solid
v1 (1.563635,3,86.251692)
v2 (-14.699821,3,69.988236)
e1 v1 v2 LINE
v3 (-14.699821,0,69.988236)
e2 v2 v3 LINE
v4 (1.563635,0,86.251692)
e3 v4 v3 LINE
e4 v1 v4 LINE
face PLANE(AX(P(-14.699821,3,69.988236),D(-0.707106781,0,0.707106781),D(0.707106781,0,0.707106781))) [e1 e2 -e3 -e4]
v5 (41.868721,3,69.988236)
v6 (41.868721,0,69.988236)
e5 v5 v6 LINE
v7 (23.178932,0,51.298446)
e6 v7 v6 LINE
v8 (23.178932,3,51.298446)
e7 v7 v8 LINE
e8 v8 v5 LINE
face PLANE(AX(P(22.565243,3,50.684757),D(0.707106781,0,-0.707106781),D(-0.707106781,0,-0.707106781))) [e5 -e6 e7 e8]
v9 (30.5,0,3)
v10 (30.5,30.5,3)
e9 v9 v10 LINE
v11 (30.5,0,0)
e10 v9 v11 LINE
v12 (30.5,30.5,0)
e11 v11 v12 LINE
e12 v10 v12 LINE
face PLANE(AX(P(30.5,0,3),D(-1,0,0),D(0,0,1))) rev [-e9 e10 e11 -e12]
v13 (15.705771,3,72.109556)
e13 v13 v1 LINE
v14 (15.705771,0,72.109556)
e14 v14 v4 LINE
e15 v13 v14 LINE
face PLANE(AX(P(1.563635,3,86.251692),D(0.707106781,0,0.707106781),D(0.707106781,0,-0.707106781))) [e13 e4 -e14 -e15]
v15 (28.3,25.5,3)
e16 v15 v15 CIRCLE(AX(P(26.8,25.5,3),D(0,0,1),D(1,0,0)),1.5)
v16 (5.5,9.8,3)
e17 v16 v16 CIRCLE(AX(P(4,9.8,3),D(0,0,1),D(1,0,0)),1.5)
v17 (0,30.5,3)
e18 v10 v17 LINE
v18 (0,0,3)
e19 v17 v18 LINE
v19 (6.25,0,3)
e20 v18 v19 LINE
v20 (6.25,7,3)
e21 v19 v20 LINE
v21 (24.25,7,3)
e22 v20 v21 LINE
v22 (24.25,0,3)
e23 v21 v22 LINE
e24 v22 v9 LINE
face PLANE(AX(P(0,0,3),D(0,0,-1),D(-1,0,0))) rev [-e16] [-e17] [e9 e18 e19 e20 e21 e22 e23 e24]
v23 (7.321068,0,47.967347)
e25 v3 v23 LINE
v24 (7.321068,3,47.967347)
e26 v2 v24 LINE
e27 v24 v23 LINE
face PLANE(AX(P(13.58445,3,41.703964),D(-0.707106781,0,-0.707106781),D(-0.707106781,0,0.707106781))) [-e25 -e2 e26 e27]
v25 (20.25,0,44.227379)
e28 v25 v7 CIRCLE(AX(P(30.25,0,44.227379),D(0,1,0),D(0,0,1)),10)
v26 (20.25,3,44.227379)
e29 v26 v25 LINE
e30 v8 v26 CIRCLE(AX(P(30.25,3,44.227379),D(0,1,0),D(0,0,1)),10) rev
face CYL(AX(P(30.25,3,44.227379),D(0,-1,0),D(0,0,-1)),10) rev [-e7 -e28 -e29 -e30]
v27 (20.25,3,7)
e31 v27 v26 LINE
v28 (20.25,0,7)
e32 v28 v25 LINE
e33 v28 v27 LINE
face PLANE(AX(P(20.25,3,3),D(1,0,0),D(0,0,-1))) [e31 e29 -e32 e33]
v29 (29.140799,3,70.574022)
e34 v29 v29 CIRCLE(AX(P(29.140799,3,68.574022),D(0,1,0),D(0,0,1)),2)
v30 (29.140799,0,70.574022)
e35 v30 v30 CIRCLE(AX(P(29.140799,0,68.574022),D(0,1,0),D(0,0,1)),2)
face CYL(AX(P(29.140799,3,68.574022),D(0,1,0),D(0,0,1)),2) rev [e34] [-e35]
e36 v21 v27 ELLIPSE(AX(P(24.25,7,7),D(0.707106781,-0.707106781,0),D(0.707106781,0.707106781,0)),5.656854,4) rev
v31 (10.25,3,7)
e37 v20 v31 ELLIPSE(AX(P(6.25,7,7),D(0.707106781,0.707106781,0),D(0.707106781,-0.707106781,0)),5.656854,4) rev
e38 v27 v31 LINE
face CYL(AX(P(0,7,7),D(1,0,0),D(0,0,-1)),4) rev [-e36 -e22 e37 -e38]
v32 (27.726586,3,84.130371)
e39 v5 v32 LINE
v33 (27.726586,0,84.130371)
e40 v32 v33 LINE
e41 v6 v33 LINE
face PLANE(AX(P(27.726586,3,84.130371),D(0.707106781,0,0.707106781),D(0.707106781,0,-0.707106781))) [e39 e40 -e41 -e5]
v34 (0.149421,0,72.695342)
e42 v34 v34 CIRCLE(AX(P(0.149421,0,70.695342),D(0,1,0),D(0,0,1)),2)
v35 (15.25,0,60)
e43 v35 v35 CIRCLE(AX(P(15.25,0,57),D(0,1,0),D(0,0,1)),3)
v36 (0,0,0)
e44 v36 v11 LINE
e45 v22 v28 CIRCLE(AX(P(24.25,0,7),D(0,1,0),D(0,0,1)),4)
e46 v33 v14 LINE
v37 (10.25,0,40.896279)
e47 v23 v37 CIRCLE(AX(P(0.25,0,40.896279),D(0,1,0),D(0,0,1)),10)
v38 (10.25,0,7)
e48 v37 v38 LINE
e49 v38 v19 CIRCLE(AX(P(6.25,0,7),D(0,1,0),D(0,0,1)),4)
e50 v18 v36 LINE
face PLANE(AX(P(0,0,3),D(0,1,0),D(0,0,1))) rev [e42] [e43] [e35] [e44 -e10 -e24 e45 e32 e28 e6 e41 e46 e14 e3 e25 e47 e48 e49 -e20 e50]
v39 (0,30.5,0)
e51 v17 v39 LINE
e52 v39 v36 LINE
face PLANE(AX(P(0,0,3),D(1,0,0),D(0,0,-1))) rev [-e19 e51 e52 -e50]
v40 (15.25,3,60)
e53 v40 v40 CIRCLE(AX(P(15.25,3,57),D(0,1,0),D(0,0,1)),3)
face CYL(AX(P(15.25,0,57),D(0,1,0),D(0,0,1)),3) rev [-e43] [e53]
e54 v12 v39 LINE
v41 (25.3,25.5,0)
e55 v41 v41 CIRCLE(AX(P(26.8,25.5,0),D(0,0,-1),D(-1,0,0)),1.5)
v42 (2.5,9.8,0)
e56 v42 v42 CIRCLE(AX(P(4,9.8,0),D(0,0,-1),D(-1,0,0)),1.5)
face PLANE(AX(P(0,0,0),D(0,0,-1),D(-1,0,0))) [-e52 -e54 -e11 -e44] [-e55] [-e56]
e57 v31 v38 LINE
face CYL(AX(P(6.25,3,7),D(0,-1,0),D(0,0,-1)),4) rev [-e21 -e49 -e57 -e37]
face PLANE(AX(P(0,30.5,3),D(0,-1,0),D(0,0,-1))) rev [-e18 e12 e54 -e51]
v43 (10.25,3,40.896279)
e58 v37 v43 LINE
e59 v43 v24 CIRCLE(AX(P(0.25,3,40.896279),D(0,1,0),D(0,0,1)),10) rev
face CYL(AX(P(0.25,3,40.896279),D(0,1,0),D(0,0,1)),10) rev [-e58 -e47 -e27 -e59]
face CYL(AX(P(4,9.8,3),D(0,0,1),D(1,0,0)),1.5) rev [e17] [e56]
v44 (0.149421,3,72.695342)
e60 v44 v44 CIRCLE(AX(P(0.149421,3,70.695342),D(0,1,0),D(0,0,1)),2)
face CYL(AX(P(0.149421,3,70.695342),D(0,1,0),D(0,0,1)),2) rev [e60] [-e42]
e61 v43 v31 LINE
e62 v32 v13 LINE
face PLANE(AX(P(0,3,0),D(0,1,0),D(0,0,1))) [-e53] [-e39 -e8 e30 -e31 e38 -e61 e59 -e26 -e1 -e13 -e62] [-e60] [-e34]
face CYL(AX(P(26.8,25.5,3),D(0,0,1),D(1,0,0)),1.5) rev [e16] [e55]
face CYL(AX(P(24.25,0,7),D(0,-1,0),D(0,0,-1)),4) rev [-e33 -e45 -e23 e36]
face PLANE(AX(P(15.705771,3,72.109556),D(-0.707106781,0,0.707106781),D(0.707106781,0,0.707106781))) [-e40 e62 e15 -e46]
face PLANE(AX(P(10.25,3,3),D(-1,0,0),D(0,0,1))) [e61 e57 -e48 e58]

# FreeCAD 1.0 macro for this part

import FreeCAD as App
import Part
import Sketcher

V = App.Vector
Q = App.Units.Quantity


def edges_at(feature, points):
    """Names of the edges that pass closest to the given points."""
    edges = feature.Shape.Edges
    near = lambda p: min(range(len(edges)), key=lambda i: edges[i].distToShape(Part.Vertex(*p))[0])
    return sorted({f"Edge{near(p) + 1}" for p in points})

doc = App.newDocument("Part")
body = doc.addObject("PartDesign::Body", "Body")

# Sketch on XY plane
sketch1 = doc.addObject("Sketcher::SketchObject", "Sketch")
body.addObject(sketch1)
sketch1.AttachmentSupport = (doc.XY_Plane, [""])
sketch1.MapMode = "FlatFace"
sketch1.addGeometry([
    Part.LineSegment(V(0, 30.5, 0), V(0, 0, 0)),
    Part.LineSegment(V(0, 0, 0), V(30.5, 0, 0)),
    Part.LineSegment(V(30.5, 0, 0), V(30.5, 30.5, 0)),
    Part.LineSegment(V(30.5, 30.5, 0), V(0, 30.5, 0)),
], False)
sketch1.addConstraint([
    Sketcher.Constraint("Coincident", 0, 2, 1, 1),
    Sketcher.Constraint("Coincident", 1, 2, 2, 1),
    Sketcher.Constraint("Coincident", 2, 2, 3, 1),
    Sketcher.Constraint("Coincident", 3, 2, 0, 1),
    Sketcher.Constraint("Vertical", 0),
    Sketcher.Constraint("Horizontal", 1),
    Sketcher.Constraint("Vertical", 2),
    Sketcher.Constraint("Horizontal", 3),
    Sketcher.Constraint("Coincident", 0, 2, -1, 1),
    Sketcher.Constraint("Equal", 3, 0),
    Sketcher.Constraint("DistanceX", 1, 1, 1, 2, 30.5),
])
pad1 = doc.addObject("PartDesign::Pad", "Pad")
body.addObject(pad1)
pad1.Profile = sketch1
pad1.Length = 3

# Sketch on XZ plane
sketch2 = doc.addObject("Sketcher::SketchObject", "Sketch001")
body.addObject(sketch2)
sketch2.AttachmentSupport = (doc.XZ_Plane, [""])
sketch2.MapMode = "FlatFace"
sketch2.addGeometry([
    Part.LineSegment(V(10.25, 63, 0), V(10.25, 3, 0)),
    Part.LineSegment(V(10.25, 3, 0), V(20.25, 3, 0)),
    Part.LineSegment(V(20.25, 3, 0), V(20.25, 63, 0)),
    Part.LineSegment(V(20.25, 63, 0), V(10.25, 63, 0)),
], False)
sketch2.addConstraint([
    Sketcher.Constraint("Coincident", 0, 2, 1, 1),
    Sketcher.Constraint("Coincident", 1, 2, 2, 1),
    Sketcher.Constraint("Coincident", 2, 2, 3, 1),
    Sketcher.Constraint("Coincident", 3, 2, 0, 1),
    Sketcher.Constraint("Vertical", 0),
    Sketcher.Constraint("Horizontal", 1),
    Sketcher.Constraint("Vertical", 2),
    Sketcher.Constraint("Horizontal", 3),
    Sketcher.Constraint("DistanceX", 1, 1, 1, 2, 10.0),
    Sketcher.Constraint("DistanceY", 0, 2, 0, 1, 60.0),
    Sketcher.Constraint("DistanceY", -1, 1, 0, 2, 3.0),
    Sketcher.Constraint("DistanceX", -1, 1, 0, 2, 10.25),
])
pad2 = doc.addObject("PartDesign::Pad", "Pad001")
body.addObject(pad2)
pad2.Profile = sketch2
pad2.Length = 3
pad2.Reversed = True

# Sketch on XZ plane
sketch3 = doc.addObject("Sketcher::SketchObject", "Sketch002")
body.addObject(sketch3)
sketch3.AttachmentSupport = (doc.XZ_Plane, [""])
sketch3.MapMode = "FlatFace"
sketch3.addGeometry([
    Part.LineSegment(V(13.58445, 41.703964, 0), V(22.565243, 50.684757, 0)),  # 0
    Part.LineSegment(V(22.565243, 50.684757, 0), V(41.868721, 69.988236, 0)),  # 1
    Part.LineSegment(V(41.868721, 69.988236, 0), V(27.726586, 84.130371, 0)),  # 2
    Part.LineSegment(V(27.726586, 84.130371, 0), V(15.705771, 72.109556, 0)),  # 3
    Part.LineSegment(V(15.705771, 72.109556, 0), V(1.563635, 86.251692, 0)),  # 4
    Part.LineSegment(V(1.563635, 86.251692, 0), V(-14.699821, 69.988236, 0)),  # 5
    Part.LineSegment(V(-14.699821, 69.988236, 0), V(13.58445, 41.703964, 0)),  # 6
], False)
sketch3.addConstraint([
    Sketcher.Constraint("Coincident", 0, 2, 1, 1),
    Sketcher.Constraint("Coincident", 1, 2, 2, 1),
    Sketcher.Constraint("Coincident", 2, 2, 3, 1),
    Sketcher.Constraint("Coincident", 3, 2, 4, 1),
    Sketcher.Constraint("Coincident", 4, 2, 5, 1),
    Sketcher.Constraint("Coincident", 5, 2, 6, 1),
    Sketcher.Constraint("Coincident", 6, 2, 0, 1),
    Sketcher.Constraint("Parallel", 0, 1),
    Sketcher.Constraint("Perpendicular", 1, 2),
    Sketcher.Constraint("Perpendicular", 2, 3),
    Sketcher.Constraint("Perpendicular", 3, 4),
    Sketcher.Constraint("Perpendicular", 4, 5),
    Sketcher.Constraint("Perpendicular", 5, 6),
    Sketcher.Constraint("Horizontal", 1, 2, 5, 2),
    Sketcher.Constraint("Equal", 2, 4),
    Sketcher.Constraint("Angle", 0, Q("45 deg")),
    Sketcher.Constraint("Distance", 2, 20.0),
    Sketcher.Constraint("Distance", 3, 17.0),
    Sketcher.Constraint("DistanceY", 0, 2, 3, 2, 21.424799),
    Sketcher.Constraint("DistanceX", -1, 1, 1, 2, 41.868721),
    Sketcher.Constraint("DistanceY", -1, 1, 2, 2, 84.130371),
])
pad3 = doc.addObject("PartDesign::Pad", "Pad002")
body.addObject(pad3)
pad3.Profile = sketch3
pad3.Length = 3
pad3.Reversed = True

# Sketch on XY plane
sketch4 = doc.addObject("Sketcher::SketchObject", "Sketch003")
body.addObject(sketch4)
sketch4.AttachmentSupport = (doc.XY_Plane, [""])
sketch4.MapMode = "FlatFace"
sketch4.AttachmentOffset = App.Placement(V(0, 0, 3), App.Rotation())
sketch4.addGeometry([
    Part.Circle(V(4, 9.8, 0), V(0, 0, 1), 1.5),
    Part.Circle(V(26.8, 25.5, 0), V(0, 0, 1), 1.5),
], False)
sketch4.addConstraint([
    Sketcher.Constraint("Equal", 0, 1),
    Sketcher.Constraint("Diameter", 0, 3.0),
    Sketcher.Constraint("DistanceX", -1, 1, 0, 3, 4.0),
    Sketcher.Constraint("DistanceY", -1, 1, 0, 3, 9.8),
    Sketcher.Constraint("DistanceX", -1, 1, 1, 3, 26.8),
    Sketcher.Constraint("DistanceY", -1, 1, 1, 3, 25.5),
])
doc.recompute()
hole = doc.addObject("PartDesign::Hole", "Hole")
body.addObject(hole)
hole.Profile = sketch4
hole.ThreadType = "None"
hole.Diameter = 3
hole.DepthType = "ThroughAll"
doc.recompute()

fillet = doc.addObject("PartDesign::Fillet", "Fillet")
body.addObject(fillet)
fillet.Base = (hole, edges_at(hole, [(10.25, 1.5, 3), (15.25, 3, 3), (20.25, 1.5, 3)]))
fillet.Radius = 4
doc.recompute()

fillet2 = doc.addObject("PartDesign::Fillet", "Fillet001")
body.addObject(fillet2)
fillet2.Base = (fillet, edges_at(fillet, [(20.25, 1.5, 48.37), (10.25, 1.5, 45.038)]))
fillet2.Radius = 10

# Sketch on XZ plane
sketch5 = doc.addObject("Sketcher::SketchObject", "Sketch004")
body.addObject(sketch5)
sketch5.AttachmentSupport = (doc.XZ_Plane, [""])
sketch5.MapMode = "FlatFace"
sketch5.AttachmentOffset = App.Placement(V(0, 0, -3), App.Rotation())
sketch5.addGeometry(Part.Circle(V(15.25, 57, 0), V(0, 0, 1), 3), False)
sketch5.addConstraint([
    Sketcher.Constraint("Diameter", 0, 6.0),
    Sketcher.Constraint("DistanceY", -1, 1, 0, 3, 57.0),
    Sketcher.Constraint("DistanceX", -1, 1, 0, 3, 15.25),
])
pocket1 = doc.addObject("PartDesign::Pocket", "Pocket")
body.addObject(pocket1)
pocket1.Profile = sketch5
pocket1.Length = 3
pocket1.Reversed = True

# Sketch on XZ plane
sketch6 = doc.addObject("Sketcher::SketchObject", "Sketch005")
body.addObject(sketch6)
sketch6.AttachmentSupport = (doc.XZ_Plane, [""])
sketch6.MapMode = "FlatFace"
sketch6.AttachmentOffset = App.Placement(V(0, 0, -3), App.Rotation())
sketch6.addGeometry(Part.Circle(V(0.149421, 70.695342, 0), V(0, 0, 1), 2), False)
sketch6.addConstraint([
    Sketcher.Constraint("Diameter", 0, 4.0),
    Sketcher.Constraint("DistanceX", -1, 1, 0, 3, 0.149421),
    Sketcher.Constraint("DistanceY", -1, 1, 0, 3, 70.695342),
])
doc.recompute()
hole2 = doc.addObject("PartDesign::Hole", "Hole001")
body.addObject(hole2)
hole2.Profile = sketch6
hole2.ThreadType = "None"
hole2.Diameter = 4
hole2.DepthType = "ThroughAll"
hole2.Reversed = True

# Sketch on XZ plane
sketch7 = doc.addObject("Sketcher::SketchObject", "Sketch006")
body.addObject(sketch7)
sketch7.AttachmentSupport = (doc.XZ_Plane, [""])
sketch7.MapMode = "FlatFace"
sketch7.AttachmentOffset = App.Placement(V(0, 0, -3), App.Rotation())
sketch7.addGeometry(Part.Circle(V(29.140799, 68.574022, 0), V(0, 0, 1), 2), False)
sketch7.addConstraint([
    Sketcher.Constraint("Diameter", 0, 4.0),
    Sketcher.Constraint("DistanceX", -1, 1, 0, 3, 29.140799),
    Sketcher.Constraint("DistanceY", -1, 1, 0, 3, 68.574022),
])
doc.recompute()
hole3 = doc.addObject("PartDesign::Hole", "Hole002")
body.addObject(hole3)
hole3.Profile = sketch7
hole3.ThreadType = "None"
hole3.Diameter = 4
hole3.DepthType = "ThroughAll"
hole3.Reversed = True

doc.recompute()
